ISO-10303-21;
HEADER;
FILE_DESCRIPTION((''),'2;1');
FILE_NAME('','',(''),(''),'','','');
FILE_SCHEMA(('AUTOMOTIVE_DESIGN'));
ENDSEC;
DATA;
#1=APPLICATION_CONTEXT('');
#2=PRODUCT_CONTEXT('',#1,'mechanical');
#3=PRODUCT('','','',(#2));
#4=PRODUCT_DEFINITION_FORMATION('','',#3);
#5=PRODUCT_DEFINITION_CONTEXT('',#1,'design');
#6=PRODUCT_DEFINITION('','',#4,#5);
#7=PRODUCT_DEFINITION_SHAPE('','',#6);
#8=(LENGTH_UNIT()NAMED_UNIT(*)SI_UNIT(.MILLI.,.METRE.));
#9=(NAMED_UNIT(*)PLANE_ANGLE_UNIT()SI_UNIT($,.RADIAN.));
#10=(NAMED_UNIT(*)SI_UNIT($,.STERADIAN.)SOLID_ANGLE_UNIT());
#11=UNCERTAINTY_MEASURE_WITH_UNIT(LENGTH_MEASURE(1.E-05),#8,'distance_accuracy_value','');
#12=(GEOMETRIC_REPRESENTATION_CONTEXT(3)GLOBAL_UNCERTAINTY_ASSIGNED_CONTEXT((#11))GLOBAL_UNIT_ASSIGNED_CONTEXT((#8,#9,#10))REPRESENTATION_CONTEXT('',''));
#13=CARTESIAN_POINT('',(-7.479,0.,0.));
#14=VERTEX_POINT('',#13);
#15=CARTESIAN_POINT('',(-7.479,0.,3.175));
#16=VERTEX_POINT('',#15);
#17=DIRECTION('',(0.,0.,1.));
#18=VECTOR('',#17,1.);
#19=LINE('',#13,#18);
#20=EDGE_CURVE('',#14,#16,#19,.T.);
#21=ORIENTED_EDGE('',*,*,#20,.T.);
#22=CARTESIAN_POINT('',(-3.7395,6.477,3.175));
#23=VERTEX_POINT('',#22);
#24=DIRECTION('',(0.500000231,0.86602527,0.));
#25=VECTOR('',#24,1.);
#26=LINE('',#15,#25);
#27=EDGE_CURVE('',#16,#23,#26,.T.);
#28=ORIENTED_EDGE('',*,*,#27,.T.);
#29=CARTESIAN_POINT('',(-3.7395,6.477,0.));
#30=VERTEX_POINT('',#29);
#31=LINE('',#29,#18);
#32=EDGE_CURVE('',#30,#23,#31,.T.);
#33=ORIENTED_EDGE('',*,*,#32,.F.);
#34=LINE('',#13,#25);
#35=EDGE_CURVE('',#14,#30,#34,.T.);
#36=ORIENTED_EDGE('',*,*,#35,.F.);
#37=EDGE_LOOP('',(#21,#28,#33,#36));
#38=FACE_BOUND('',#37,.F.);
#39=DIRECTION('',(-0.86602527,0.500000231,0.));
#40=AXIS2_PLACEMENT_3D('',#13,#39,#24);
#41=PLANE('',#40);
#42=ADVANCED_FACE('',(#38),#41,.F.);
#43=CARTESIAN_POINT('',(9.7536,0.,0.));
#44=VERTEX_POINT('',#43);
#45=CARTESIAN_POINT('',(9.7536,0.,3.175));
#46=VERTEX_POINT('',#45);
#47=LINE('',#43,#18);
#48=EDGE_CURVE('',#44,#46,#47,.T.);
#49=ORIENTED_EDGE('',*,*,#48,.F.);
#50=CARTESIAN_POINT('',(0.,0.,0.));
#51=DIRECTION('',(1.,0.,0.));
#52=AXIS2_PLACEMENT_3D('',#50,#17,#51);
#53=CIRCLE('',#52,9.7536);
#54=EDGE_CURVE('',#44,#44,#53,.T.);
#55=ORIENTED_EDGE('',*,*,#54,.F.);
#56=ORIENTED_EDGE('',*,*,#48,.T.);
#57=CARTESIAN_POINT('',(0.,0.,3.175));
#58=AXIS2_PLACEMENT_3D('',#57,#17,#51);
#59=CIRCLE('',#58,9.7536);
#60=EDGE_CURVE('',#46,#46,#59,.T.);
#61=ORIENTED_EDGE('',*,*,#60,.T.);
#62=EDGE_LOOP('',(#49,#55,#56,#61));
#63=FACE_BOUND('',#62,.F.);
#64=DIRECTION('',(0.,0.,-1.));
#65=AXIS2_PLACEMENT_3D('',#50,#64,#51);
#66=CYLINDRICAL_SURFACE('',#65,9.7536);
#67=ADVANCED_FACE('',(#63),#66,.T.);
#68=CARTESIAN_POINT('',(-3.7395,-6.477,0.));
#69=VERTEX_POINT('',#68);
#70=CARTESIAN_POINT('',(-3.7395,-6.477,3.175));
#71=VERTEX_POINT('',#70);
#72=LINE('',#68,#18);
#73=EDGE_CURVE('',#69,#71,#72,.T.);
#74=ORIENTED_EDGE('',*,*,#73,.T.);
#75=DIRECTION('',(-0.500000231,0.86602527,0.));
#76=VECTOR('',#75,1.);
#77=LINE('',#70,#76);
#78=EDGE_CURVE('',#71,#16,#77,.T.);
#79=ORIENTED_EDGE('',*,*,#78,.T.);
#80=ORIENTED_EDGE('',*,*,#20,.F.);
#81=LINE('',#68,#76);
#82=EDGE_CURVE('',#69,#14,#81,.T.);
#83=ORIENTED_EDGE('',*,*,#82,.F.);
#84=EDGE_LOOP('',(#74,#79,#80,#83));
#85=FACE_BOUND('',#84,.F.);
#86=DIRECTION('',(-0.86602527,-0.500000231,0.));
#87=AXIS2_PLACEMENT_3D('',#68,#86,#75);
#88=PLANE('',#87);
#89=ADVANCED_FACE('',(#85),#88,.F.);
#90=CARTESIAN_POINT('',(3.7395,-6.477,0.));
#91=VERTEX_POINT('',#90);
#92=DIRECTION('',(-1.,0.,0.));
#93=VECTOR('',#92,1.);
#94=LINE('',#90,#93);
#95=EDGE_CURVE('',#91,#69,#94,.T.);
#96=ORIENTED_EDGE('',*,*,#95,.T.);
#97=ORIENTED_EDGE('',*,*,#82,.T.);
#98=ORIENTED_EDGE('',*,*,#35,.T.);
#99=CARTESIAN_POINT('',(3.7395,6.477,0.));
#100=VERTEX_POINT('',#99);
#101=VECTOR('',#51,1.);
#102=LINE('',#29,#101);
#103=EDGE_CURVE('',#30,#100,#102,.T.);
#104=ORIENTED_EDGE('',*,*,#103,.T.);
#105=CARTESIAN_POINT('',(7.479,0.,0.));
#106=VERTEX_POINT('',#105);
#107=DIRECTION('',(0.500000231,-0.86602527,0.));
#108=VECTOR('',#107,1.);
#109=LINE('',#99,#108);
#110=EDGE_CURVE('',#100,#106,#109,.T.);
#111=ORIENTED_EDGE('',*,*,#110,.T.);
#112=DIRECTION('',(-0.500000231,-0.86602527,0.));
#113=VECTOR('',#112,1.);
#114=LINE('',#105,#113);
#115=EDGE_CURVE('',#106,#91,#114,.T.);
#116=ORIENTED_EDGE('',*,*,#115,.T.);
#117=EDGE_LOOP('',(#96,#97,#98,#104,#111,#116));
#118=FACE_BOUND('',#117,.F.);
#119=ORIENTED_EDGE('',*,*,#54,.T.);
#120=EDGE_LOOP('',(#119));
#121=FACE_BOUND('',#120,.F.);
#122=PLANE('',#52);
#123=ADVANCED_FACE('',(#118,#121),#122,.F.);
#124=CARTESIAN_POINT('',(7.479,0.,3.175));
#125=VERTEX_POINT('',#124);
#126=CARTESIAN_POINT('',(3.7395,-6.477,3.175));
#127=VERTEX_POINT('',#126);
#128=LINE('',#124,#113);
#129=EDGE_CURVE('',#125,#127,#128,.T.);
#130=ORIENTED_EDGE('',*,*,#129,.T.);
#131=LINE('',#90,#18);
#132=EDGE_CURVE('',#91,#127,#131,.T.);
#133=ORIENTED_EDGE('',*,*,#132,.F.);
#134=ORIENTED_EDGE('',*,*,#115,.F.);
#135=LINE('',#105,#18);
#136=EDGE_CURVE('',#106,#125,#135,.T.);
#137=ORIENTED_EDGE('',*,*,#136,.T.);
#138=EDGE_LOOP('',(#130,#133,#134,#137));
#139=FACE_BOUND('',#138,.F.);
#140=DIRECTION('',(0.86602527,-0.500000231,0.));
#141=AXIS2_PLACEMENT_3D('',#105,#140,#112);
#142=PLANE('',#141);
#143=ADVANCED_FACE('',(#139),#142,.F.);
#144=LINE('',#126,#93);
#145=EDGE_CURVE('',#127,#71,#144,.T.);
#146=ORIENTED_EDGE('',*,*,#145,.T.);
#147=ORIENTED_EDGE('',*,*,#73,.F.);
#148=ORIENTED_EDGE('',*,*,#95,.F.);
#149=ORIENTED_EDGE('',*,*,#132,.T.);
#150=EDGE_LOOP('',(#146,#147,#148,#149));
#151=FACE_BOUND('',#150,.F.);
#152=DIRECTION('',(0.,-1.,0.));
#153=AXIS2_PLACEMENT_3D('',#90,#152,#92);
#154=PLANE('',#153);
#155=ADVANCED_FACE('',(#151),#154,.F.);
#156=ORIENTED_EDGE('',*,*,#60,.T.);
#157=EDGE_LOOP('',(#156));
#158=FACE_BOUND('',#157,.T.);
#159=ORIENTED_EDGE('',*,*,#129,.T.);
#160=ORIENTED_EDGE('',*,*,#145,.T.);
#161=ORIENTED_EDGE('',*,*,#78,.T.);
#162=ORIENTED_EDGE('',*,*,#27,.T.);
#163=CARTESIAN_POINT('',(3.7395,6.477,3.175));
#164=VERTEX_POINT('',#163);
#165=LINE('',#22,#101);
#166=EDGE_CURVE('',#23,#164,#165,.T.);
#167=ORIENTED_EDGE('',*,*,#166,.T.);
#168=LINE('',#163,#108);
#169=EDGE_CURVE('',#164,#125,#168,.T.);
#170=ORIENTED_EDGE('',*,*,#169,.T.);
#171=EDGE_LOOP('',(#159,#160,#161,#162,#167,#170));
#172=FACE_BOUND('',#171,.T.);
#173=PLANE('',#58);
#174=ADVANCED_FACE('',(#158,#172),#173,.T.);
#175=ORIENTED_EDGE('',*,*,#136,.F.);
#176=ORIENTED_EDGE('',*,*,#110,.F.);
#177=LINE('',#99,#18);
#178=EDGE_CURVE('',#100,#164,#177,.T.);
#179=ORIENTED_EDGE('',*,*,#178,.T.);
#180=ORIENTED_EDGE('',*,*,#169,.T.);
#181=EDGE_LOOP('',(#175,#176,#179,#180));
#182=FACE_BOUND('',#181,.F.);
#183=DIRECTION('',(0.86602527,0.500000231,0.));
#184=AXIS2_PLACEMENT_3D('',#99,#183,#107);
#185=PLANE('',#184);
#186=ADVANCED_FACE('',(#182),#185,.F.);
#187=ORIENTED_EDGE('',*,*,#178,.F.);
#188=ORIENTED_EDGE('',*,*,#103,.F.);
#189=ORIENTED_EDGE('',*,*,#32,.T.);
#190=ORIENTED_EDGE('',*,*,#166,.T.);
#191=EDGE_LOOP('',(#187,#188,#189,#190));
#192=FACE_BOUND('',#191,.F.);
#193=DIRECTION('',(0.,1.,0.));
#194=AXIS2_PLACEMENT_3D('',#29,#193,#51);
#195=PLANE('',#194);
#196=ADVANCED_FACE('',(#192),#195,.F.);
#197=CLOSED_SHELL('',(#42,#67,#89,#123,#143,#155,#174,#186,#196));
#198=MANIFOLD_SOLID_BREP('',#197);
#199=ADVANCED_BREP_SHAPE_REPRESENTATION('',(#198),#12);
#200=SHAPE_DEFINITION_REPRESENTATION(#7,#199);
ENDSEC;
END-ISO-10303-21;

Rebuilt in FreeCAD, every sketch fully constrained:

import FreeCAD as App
import Part
import Sketcher

V = App.Vector
Q = App.Units.Quantity

doc = App.newDocument("Part")
params = doc.addObject("Spreadsheet::Sheet", "Params")
for row, (alias, value) in enumerate([
    ("sketch1_diameter", "0.768 in"),
    ("pad1_length", "0.125 in"),
], start=1):
    params.set(f"A{row}", alias)
    params.set(f"B{row}", "=" + value)
    params.setAlias(f"B{row}", alias)

body = doc.addObject("PartDesign::Body", "Body")

sketch1 = body.newObject("Sketcher::SketchObject", "Sketch")
sketch1.AttachmentSupport = (doc.getObject("XY_Plane"), [""])
sketch1.MapMode = "FlatFace"
sketch1.addGeometry(Part.Circle(V(0, 0, 0), V(0, 0, 1), 10), False)
sketch1.addGeometry(Part.LineSegment(V(-4, -6, 0), V(-7, 0, 0)), False)
sketch1.addGeometry(Part.LineSegment(V(-7, 0, 0), V(-4, 6, 0)), False)
sketch1.addGeometry(Part.LineSegment(V(-4, 6, 0), V(4, 6, 0)), False)
sketch1.addGeometry(Part.LineSegment(V(4, 6, 0), V(7, 0, 0)), False)
sketch1.addGeometry(Part.LineSegment(V(7, 0, 0), V(4, -6, 0)), False)
sketch1.addGeometry(Part.LineSegment(V(4, -6, 0), V(-4, -6, 0)), False)
sketch1.addConstraint(Sketcher.Constraint("Coincident", 1, 2, 2, 1))
sketch1.addConstraint(Sketcher.Constraint("Coincident", 2, 2, 3, 1))
sketch1.addConstraint(Sketcher.Constraint("Coincident", 3, 2, 4, 1))
sketch1.addConstraint(Sketcher.Constraint("Coincident", 4, 2, 5, 1))
sketch1.addConstraint(Sketcher.Constraint("Coincident", 5, 2, 6, 1))
sketch1.addConstraint(Sketcher.Constraint("Coincident", 6, 2, 1, 1))
sketch1.addConstraint(Sketcher.Constraint("Horizontal", 3))
sketch1.addConstraint(Sketcher.Constraint("Horizontal", 6))
sketch1.addConstraint(Sketcher.Constraint("Coincident", 0, 3, -1, 1))
sketch1.addConstraint(Sketcher.Constraint("Symmetric", 1, 2, 4, 2, -1, 1))
sketch1.addConstraint(Sketcher.Constraint("Symmetric", 2, 2, 5, 2, -1, 1))
sketch1.addConstraint(Sketcher.Constraint("PointOnObject", 1, 2, -1))
sketch1.addConstraint(Sketcher.Constraint("Parallel", 1, 4))
sketch1.addConstraint(Sketcher.Constraint("Vertical", 3, 2, 5, 2))
sketch1.addConstraint(Sketcher.Constraint("Diameter", 0, Q("0.768 in")))
sketch1.addConstraint(Sketcher.Constraint("DistanceY", 5, 2, 3, 2, Q("0.51 in")))
sketch1.addConstraint(Sketcher.Constraint("Angle", 1, Q("120 deg")))
sketch1.addConstraint(Sketcher.Constraint("DistanceX", 3, 1, 3, 2, 7.479))
sketch1.setExpression("Constraints[14]", "Params.sketch1_diameter")
pad1 = body.newObject("PartDesign::Pad", "Pad")
pad1.Profile = sketch1
pad1.setExpression("Length", "Params.pad1_length")

doc.recompute()
